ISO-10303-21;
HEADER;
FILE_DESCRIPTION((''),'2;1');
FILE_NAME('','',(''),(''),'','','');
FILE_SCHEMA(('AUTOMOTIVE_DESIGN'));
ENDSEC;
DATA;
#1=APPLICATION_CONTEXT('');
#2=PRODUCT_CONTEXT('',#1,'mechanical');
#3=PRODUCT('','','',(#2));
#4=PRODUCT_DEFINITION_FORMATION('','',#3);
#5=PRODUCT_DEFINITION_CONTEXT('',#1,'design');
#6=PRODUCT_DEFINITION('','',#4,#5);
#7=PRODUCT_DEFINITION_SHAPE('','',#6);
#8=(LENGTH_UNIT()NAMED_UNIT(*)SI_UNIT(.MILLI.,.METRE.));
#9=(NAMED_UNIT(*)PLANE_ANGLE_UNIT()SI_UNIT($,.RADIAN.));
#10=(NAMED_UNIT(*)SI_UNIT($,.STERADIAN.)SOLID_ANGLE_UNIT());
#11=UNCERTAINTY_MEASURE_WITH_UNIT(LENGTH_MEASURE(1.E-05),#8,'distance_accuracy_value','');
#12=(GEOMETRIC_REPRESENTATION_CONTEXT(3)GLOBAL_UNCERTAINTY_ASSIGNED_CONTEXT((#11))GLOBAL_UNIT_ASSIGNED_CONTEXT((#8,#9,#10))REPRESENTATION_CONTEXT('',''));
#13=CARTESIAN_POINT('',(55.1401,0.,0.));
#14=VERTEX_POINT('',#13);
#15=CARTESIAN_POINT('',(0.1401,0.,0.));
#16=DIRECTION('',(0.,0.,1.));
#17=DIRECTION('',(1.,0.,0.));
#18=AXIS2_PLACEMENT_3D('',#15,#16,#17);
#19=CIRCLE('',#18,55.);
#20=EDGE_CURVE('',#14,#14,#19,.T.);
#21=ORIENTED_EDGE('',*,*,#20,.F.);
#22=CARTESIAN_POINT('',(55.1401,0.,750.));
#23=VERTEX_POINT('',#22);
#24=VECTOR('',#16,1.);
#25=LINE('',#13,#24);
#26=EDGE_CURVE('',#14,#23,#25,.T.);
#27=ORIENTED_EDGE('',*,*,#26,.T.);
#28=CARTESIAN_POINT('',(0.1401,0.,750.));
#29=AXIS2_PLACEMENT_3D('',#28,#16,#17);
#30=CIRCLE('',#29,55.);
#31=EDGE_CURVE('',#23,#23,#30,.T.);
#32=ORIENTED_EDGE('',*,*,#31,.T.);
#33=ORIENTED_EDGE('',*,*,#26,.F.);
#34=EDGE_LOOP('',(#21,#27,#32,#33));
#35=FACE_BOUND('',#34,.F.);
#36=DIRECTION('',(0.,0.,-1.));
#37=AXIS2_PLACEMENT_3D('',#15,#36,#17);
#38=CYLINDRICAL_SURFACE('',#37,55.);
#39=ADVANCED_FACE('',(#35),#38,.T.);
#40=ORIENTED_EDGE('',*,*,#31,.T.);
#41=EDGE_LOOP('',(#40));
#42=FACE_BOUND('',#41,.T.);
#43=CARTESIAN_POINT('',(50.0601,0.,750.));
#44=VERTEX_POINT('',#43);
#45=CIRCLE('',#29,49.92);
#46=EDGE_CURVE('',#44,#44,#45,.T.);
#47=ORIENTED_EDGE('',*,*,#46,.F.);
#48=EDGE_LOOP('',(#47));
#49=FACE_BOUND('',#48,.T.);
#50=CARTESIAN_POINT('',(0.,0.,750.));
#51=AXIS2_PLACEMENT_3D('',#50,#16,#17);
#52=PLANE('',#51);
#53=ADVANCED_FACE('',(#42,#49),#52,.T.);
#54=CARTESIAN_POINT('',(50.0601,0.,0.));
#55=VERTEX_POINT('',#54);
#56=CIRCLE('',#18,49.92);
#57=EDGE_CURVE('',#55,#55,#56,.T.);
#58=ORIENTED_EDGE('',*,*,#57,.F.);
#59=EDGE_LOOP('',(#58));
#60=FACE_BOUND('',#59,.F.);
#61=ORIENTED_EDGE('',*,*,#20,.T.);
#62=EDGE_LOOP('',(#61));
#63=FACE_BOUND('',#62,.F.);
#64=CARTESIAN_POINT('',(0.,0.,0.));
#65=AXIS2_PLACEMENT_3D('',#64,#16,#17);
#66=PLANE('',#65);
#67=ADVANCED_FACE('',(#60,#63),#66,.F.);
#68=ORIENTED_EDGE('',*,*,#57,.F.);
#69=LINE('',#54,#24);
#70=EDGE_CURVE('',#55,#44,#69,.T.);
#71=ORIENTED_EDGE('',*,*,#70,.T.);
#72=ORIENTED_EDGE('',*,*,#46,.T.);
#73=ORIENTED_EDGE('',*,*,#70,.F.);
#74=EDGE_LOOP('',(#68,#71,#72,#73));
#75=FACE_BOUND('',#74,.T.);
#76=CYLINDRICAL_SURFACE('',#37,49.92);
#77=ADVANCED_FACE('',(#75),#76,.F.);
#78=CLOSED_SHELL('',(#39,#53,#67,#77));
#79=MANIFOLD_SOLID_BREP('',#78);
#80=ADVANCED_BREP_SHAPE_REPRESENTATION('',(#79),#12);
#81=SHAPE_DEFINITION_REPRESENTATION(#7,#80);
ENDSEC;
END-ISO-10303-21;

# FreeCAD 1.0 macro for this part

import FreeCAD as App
import Part
import Sketcher
Q = App.Units.Quantity

doc = App.newDocument("Part")
body = doc.addObject("PartDesign::Body", "Body")

# Sketch on XY plane
sketch1 = body.newObject("Sketcher::SketchObject", "Sketch")
sketch1.AttachmentSupport = (doc.getObject("XY_Plane"), [""])
sketch1.MapMode = "FlatFace"
sketch1.addGeometry(Part.Circle(App.Vector(0, 0, 0), App.Vector(0, 0, 1), 55), False)
sketch1.addGeometry(Part.Circle(App.Vector(0, 0, 0), App.Vector(0, 0, 1), 50), False)
sketch1.addConstraint(Sketcher.Constraint("Coincident", 1, 3, 0, 3))
sketch1.addConstraint(Sketcher.Constraint("PointOnObject", 0, 3, -1))
sketch1.addConstraint(Sketcher.Constraint("Diameter", 0, Q("110 mm")))
sketch1.addConstraint(Sketcher.Constraint("Diameter", 1, Q("99.84 mm")))
sketch1.addConstraint(Sketcher.Constraint("DistanceX", -1, 1, 0, 3, Q("0.14 mm")))
pad1 = body.newObject("PartDesign::Pad", "Pad")
pad1.Profile = sketch1
pad1.Length = 750

doc.recompute()
